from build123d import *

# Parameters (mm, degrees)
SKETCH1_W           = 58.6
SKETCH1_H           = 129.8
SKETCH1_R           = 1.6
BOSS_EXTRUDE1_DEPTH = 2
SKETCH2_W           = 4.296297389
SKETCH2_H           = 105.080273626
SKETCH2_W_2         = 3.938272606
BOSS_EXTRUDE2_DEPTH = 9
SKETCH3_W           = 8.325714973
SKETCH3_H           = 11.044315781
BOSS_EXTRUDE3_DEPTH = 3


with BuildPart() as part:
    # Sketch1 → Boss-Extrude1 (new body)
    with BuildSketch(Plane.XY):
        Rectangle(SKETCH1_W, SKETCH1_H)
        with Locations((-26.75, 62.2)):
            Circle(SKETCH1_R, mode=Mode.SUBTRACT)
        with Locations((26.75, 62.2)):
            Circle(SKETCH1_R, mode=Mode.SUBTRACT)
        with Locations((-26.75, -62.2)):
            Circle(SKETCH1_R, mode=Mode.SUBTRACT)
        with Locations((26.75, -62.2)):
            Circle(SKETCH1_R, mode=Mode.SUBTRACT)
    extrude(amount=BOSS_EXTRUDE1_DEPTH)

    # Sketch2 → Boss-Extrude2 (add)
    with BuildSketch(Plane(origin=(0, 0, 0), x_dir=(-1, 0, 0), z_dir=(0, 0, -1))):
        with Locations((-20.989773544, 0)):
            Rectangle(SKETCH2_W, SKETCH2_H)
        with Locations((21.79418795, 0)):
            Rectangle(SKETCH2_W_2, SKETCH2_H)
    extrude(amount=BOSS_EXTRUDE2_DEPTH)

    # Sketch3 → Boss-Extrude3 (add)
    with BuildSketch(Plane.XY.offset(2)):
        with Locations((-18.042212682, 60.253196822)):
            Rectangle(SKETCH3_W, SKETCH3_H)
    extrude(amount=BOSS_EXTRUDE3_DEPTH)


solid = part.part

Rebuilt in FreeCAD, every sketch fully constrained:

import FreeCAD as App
import Part
import Sketcher

doc = App.newDocument("Part")
body = doc.addObject("PartDesign::Body", "Body")

sketch1 = doc.addObject("Sketcher::SketchObject", "Sketch")
body.addObject(sketch1)
sketch1.AttachmentSupport = (doc.XY_Plane, [""])
sketch1.MapMode = "FlatFace"
sketch1.addGeometry(Part.LineSegment(App.Vector(-29.3, 64.9, 0), App.Vector(-29.3, -64.9, 0)), False)
sketch1.addGeometry(Part.LineSegment(App.Vector(-29.3, -64.9, 0), App.Vector(29.3, -64.9, 0)), False)
sketch1.addGeometry(Part.LineSegment(App.Vector(29.3, -64.9, 0), App.Vector(29.3, 64.9, 0)), False)
sketch1.addGeometry(Part.LineSegment(App.Vector(29.3, 64.9, 0), App.Vector(-29.3, 64.9, 0)), False)
sketch1.addGeometry(Part.Circle(App.Vector(-26.8, -62.2, 0), App.Vector(0, 0, 1), 1.6), False)
sketch1.addGeometry(Part.Circle(App.Vector(26.8, -62.2, 0), App.Vector(0, 0, 1), 1.6), False)
sketch1.addGeometry(Part.Circle(App.Vector(-26.8, 62.2, 0), App.Vector(0, 0, 1), 1.6), False)
sketch1.addGeometry(Part.Circle(App.Vector(26.8, 62.2, 0), App.Vector(0, 0, 1), 1.6), False)
sketch1.addConstraint(Sketcher.Constraint("Coincident", 0, 2, 1, 1))
sketch1.addConstraint(Sketcher.Constraint("Coincident", 1, 2, 2, 1))
sketch1.addConstraint(Sketcher.Constraint("Coincident", 2, 2, 3, 1))
sketch1.addConstraint(Sketcher.Constraint("Coincident", 3, 2, 0, 1))
sketch1.addConstraint(Sketcher.Constraint("Vertical", 0))
sketch1.addConstraint(Sketcher.Constraint("Horizontal", 1))
sketch1.addConstraint(Sketcher.Constraint("Vertical", 2))
sketch1.addConstraint(Sketcher.Constraint("Horizontal", 3))
sketch1.addConstraint(Sketcher.Constraint("Equal", 4, 5))
sketch1.addConstraint(Sketcher.Constraint("Equal", 5, 6))
sketch1.addConstraint(Sketcher.Constraint("Equal", 6, 7))
sketch1.addConstraint(Sketcher.Constraint("Symmetric", 5, 3, 6, 3, -1, 1))
sketch1.addConstraint(Sketcher.Constraint("Symmetric", 4, 3, 7, 3, -1, 1))
sketch1.addConstraint(Sketcher.Constraint("Symmetric", 0, 2, 2, 2, -1, 1))
sketch1.addConstraint(Sketcher.Constraint("Symmetric", 4, 3, 5, 3, -2))
sketch1.addConstraint(Sketcher.Constraint("Diameter", 4, 3.2))
sketch1.addConstraint(Sketcher.Constraint("DistanceX", 1, 1, 1, 2, 58.6))
sketch1.addConstraint(Sketcher.Constraint("DistanceY", 0, 2, 0, 1, 129.8))
sketch1.addConstraint(Sketcher.Constraint("DistanceY", 4, 3, -1, 1, 62.2))
sketch1.addConstraint(Sketcher.Constraint("DistanceX", 4, 3, 5, 3, 53.5))
pad1 = doc.addObject("PartDesign::Pad", "Pad")
body.addObject(pad1)
pad1.Profile = sketch1
pad1.Length = 2

sketch2 = doc.addObject("Sketcher::SketchObject", "Sketch001")
body.addObject(sketch2)
sketch2.AttachmentSupport = (doc.XY_Plane, [""])
sketch2.MapMode = "FlatFace"
sketch2.addGeometry(Part.LineSegment(App.Vector(23.1, 52.5, 0), App.Vector(23.1, -52.5, 0)), False)
sketch2.addGeometry(Part.LineSegment(App.Vector(23.1, -52.5, 0), App.Vector(18.8, -52.5, 0)), False)
sketch2.addGeometry(Part.LineSegment(App.Vector(18.8, -52.5, 0), App.Vector(18.8, 52.5, 0)), False)
sketch2.addGeometry(Part.LineSegment(App.Vector(18.8, 52.5, 0), App.Vector(23.1, 52.5, 0)), False)
sketch2.addGeometry(Part.LineSegment(App.Vector(-19.8, 52.5, 0), App.Vector(-19.8, -52.5, 0)), False)
sketch2.addGeometry(Part.LineSegment(App.Vector(-19.8, -52.5, 0), App.Vector(-23.8, -52.5, 0)), False)
sketch2.addGeometry(Part.LineSegment(App.Vector(-23.8, -52.5, 0), App.Vector(-23.8, 52.5, 0)), False)
sketch2.addGeometry(Part.LineSegment(App.Vector(-23.8, 52.5, 0), App.Vector(-19.8, 52.5, 0)), False)
sketch2.addConstraint(Sketcher.Constraint("Coincident", 0, 2, 1, 1))
sketch2.addConstraint(Sketcher.Constraint("Coincident", 1, 2, 2, 1))
sketch2.addConstraint(Sketcher.Constraint("Coincident", 2, 2, 3, 1))
sketch2.addConstraint(Sketcher.Constraint("Coincident", 3, 2, 0, 1))
sketch2.addConstraint(Sketcher.Constraint("Coincident", 4, 2, 5, 1))
sketch2.addConstraint(Sketcher.Constraint("Coincident", 5, 2, 6, 1))
sketch2.addConstraint(Sketcher.Constraint("Coincident", 6, 2, 7, 1))
sketch2.addConstraint(Sketcher.Constraint("Coincident", 7, 2, 4, 1))
sketch2.addConstraint(Sketcher.Constraint("Vertical", 0))
sketch2.addConstraint(Sketcher.Constraint("Horizontal", 1))
sketch2.addConstraint(Sketcher.Constraint("Vertical", 2))
sketch2.addConstraint(Sketcher.Constraint("Horizontal", 3))
sketch2.addConstraint(Sketcher.Constraint("Vertical", 4))
sketch2.addConstraint(Sketcher.Constraint("Horizontal", 5))
sketch2.addConstraint(Sketcher.Constraint("Vertical", 6))
sketch2.addConstraint(Sketcher.Constraint("Horizontal", 7))
sketch2.addConstraint(Sketcher.Constraint("Horizontal", 1, 2, 4, 2))
sketch2.addConstraint(Sketcher.Constraint("Horizontal", 3, 2, 6, 2))
sketch2.addConstraint(Sketcher.Constraint("DistanceX", 1, 2, 1, 1, 4.296297))
sketch2.addConstraint(Sketcher.Constraint("DistanceX", 5, 2, 5, 1, 3.938273))
sketch2.addConstraint(Sketcher.Constraint("DistanceY", 0, 2, 0, 1, 105.080274))
sketch2.addConstraint(Sketcher.Constraint("DistanceX", 4, 2, -1, 1, 19.825052))
sketch2.addConstraint(Sketcher.Constraint("DistanceX", 5, 2, 1, 2, 42.604949))
sketch2.addConstraint(Sketcher.Constraint("DistanceY", 0, 2, -1, 1, 52.540137))
pad2 = doc.addObject("PartDesign::Pad", "Pad001")
body.addObject(pad2)
pad2.Profile = sketch2
pad2.Length = 9
pad2.Reversed = True

sketch3 = doc.addObject("Sketcher::SketchObject", "Sketch002")
body.addObject(sketch3)
sketch3.AttachmentSupport = (doc.XY_Plane, [""])
sketch3.MapMode = "FlatFace"
sketch3.AttachmentOffset = App.Placement(App.Vector(0, 0, 2), App.Rotation())
sketch3.addGeometry(Part.LineSegment(App.Vector(-22, 66, 0), App.Vector(-22, 55, 0)), False)
sketch3.addGeometry(Part.LineSegment(App.Vector(-22, 55, 0), App.Vector(-14, 55, 0)), False)
sketch3.addGeometry(Part.LineSegment(App.Vector(-14, 55, 0), App.Vector(-14, 66, 0)), False)
sketch3.addGeometry(Part.LineSegment(App.Vector(-14, 66, 0), App.Vector(-22, 66, 0)), False)
sketch3.addConstraint(Sketcher.Constraint("Coincident", 0, 2, 1, 1))
sketch3.addConstraint(Sketcher.Constraint("Coincident", 1, 2, 2, 1))
sketch3.addConstraint(Sketcher.Constraint("Coincident", 2, 2, 3, 1))
sketch3.addConstraint(Sketcher.Constraint("Coincident", 3, 2, 0, 1))
sketch3.addConstraint(Sketcher.Constraint("Vertical", 0))
sketch3.addConstraint(Sketcher.Constraint("Horizontal", 1))
sketch3.addConstraint(Sketcher.Constraint("Vertical", 2))
sketch3.addConstraint(Sketcher.Constraint("Horizontal", 3))
sketch3.addConstraint(Sketcher.Constraint("DistanceX", 1, 1, 1, 2, 8.325715))
sketch3.addConstraint(Sketcher.Constraint("DistanceY", 0, 2, 0, 1, 11.044316))
sketch3.addConstraint(Sketcher.Constraint("DistanceX", 0, 2, -1, 1, 22.20507))
sketch3.addConstraint(Sketcher.Constraint("DistanceY", -1, 1, 0, 2, 54.731039))
pad3 = doc.addObject("PartDesign::Pad", "Pad002")
body.addObject(pad3)
pad3.Profile = sketch3
pad3.Length = 3

doc.recompute()
